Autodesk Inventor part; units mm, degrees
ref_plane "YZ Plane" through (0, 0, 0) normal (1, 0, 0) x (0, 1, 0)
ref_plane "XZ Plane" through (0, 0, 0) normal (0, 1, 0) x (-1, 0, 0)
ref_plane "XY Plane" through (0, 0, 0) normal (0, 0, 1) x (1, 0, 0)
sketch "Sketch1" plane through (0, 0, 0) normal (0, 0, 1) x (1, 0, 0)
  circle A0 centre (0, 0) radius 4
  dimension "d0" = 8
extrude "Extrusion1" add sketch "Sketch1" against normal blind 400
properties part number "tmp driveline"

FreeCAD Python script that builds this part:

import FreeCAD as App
import Part
import Sketcher
from FreeCAD import Vector

doc = App.newDocument("Part")
body = doc.addObject("PartDesign::Body", "Body")

sketch1 = body.newObject("Sketcher::SketchObject", "Sketch")
sketch1.AttachmentSupport = (doc.getObject("XY_Plane"), [""])
sketch1.MapMode = "FlatFace"
sketch1.addGeometry(Part.Circle(Vector(0, 0, 0), Vector(0, 0, 1), 4), False)
sketch1.addConstraint(Sketcher.Constraint("Coincident", 0, 3, -1, 1))
sketch1.addConstraint(Sketcher.Constraint("Diameter", 0, 8.0))
pad1 = body.newObject("PartDesign::Pad", "Pad")
pad1.Profile = sketch1
pad1.Length = 400
pad1.Reversed = True

doc.recompute()
